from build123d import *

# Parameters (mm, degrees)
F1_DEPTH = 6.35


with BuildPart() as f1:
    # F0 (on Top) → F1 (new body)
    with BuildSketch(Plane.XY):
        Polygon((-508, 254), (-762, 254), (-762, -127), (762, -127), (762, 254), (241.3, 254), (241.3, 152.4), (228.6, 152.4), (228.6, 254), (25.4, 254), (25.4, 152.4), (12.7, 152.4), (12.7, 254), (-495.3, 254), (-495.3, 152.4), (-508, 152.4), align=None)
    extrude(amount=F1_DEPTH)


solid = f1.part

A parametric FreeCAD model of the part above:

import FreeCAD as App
import Part
import Sketcher
Q = App.Units.Quantity


def add_polygon(sketch, points):
    """Adds a closed chain of lines whose ends are joined by coincident constraints."""
    first, n = sketch.GeometryCount, len(points)
    for a, b in zip(points, points[1:] + points[:1]):
        sketch.addGeometry(Part.LineSegment(App.Vector(*a, 0), App.Vector(*b, 0)), False)
    for i in range(n):
        sketch.addConstraint(Sketcher.Constraint("Coincident", first + i, 2, first + (i + 1) % n, 1))

doc = App.newDocument("Part")
params = doc.addObject("Spreadsheet::Sheet", "Params")
for row, (alias, value) in enumerate([
    ("sketch1_width", "10 in"),
    ("sketch1_width2", "60 in"),
    ("sketch1_width3", "8 in"),
    ("sketch1_width4", "20 in"),
    ("sketch1_height", "15 in"),
    ("pad1_length", "0.25 in"),
], start=1):
    params.set(f"A{row}", alias)
    params.set(f"B{row}", "=" + value)
    params.setAlias(f"B{row}", alias)

body = doc.addObject("PartDesign::Body", "Body")

# Sketch on XY plane
sketch1 = body.newObject("Sketcher::SketchObject", "Sketch")
sketch1.AttachmentSupport = (doc.getObject("XY_Plane"), [""])
sketch1.MapMode = "FlatFace"
add_polygon(sketch1, [(-508, 254), (-762, 254), (-762, -127), (762, -127), (762, 254), (241.3, 254), (241.3, 152.4), (228.6, 152.4), (228.6, 254), (25.4, 254), (25.4, 152.4), (12.7, 152.4), (12.7, 254), (-495.3, 254), (-495.3, 152.4), (-508, 152.4)])  # lines 0-15
sketch1.addConstraint([
    Sketcher.Constraint("Horizontal", 0),
    Sketcher.Constraint("Vertical", 1),
    Sketcher.Constraint("Horizontal", 2),
    Sketcher.Constraint("Vertical", 3),
    Sketcher.Constraint("Horizontal", 4),
    Sketcher.Constraint("Vertical", 5),
    Sketcher.Constraint("Horizontal", 6),
    Sketcher.Constraint("Vertical", 7),
    Sketcher.Constraint("Horizontal", 8),
    Sketcher.Constraint("Vertical", 9),
    Sketcher.Constraint("Horizontal", 10),
    Sketcher.Constraint("Vertical", 11),
    Sketcher.Constraint("Horizontal", 12),
    Sketcher.Constraint("Vertical", 13),
    Sketcher.Constraint("Horizontal", 14),
    Sketcher.Constraint("Vertical", 15),
    Sketcher.Constraint("Symmetric", 0, 2, 3, 2, -2),
    Sketcher.Constraint("Horizontal", 4, 2, 7, 2),
    Sketcher.Constraint("Horizontal", 6, 2, 9, 2),
    Sketcher.Constraint("Horizontal", 8, 2, 11, 2),
    Sketcher.Constraint("Horizontal", 10, 2, 13, 2),
    Sketcher.Constraint("Equal", 6, 10),
    Sketcher.Constraint("Equal", 10, 14),
    Sketcher.Constraint("DistanceX", 0, 2, 0, 1, Q("10 in")),
    Sketcher.Constraint("DistanceX", 2, 1, 2, 2, Q("60 in")),
    Sketcher.Constraint("DistanceX", 8, 2, 8, 1, Q("8 in")),
    Sketcher.Constraint("DistanceX", 12, 2, 12, 1, Q("20 in")),
    Sketcher.Constraint("DistanceY", 1, 2, 1, 1, Q("15 in")),
    Sketcher.Constraint("DistanceY", 5, 2, 5, 1, Q("4 in")),
    Sketcher.Constraint("DistanceX", 4, 2, 4, 1, Q("20.5 in")),
    Sketcher.Constraint("DistanceY", -1, 1, 0, 2, Q("10 in")),
])
sketch1.setExpression("Constraints[39]", "Params.sketch1_width")
sketch1.setExpression("Constraints[40]", "Params.sketch1_width2")
sketch1.setExpression("Constraints[41]", "Params.sketch1_width3")
sketch1.setExpression("Constraints[42]", "Params.sketch1_width4")
sketch1.setExpression("Constraints[43]", "Params.sketch1_height")
pad1 = body.newObject("PartDesign::Pad", "Pad")
pad1.Profile = sketch1
pad1.setExpression("Length", "Params.pad1_length")

doc.recompute()
